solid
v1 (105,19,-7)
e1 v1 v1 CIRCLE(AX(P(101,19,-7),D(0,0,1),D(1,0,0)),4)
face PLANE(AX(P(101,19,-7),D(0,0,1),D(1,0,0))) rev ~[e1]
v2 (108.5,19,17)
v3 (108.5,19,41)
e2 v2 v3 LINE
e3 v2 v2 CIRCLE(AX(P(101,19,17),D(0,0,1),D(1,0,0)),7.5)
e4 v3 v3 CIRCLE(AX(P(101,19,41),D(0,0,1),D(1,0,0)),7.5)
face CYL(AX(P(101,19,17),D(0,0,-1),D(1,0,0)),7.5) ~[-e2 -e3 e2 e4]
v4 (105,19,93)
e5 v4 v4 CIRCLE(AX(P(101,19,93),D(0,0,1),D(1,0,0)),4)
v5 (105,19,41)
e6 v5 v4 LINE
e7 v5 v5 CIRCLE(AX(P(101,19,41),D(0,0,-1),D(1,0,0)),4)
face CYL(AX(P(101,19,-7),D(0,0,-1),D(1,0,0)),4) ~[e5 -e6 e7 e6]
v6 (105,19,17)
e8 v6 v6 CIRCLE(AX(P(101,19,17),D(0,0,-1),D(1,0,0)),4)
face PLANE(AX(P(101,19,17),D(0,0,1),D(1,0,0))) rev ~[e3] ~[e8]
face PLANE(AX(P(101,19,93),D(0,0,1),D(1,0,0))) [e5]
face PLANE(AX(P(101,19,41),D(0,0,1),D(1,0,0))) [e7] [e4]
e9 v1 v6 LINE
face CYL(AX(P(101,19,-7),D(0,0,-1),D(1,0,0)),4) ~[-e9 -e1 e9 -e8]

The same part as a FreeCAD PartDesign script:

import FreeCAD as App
import Part
import Sketcher
Q = App.Units.Quantity

doc = App.newDocument("Part")
params = doc.addObject("Spreadsheet::Sheet", "Params")
for row, (alias, value) in enumerate([
    ("sketch1_diameter", "8 mm"),
    ("pad1_length", "100 mm"),
    ("sketch2_diameter", "15 mm"),
    ("pad2_length", "24 mm"),
], start=1):
    params.set(f"A{row}", alias)
    params.set(f"B{row}", "=" + value)
    params.setAlias(f"B{row}", alias)

body = doc.addObject("PartDesign::Body", "Body")

# Sketch on XY plane
sketch1 = body.newObject("Sketcher::SketchObject", "Sketch")
sketch1.AttachmentSupport = (doc.getObject("XY_Plane"), [""])
sketch1.MapMode = "FlatFace"
sketch1.AttachmentOffset = App.Placement(App.Vector(0, 0, -118), App.Rotation())
sketch1.addGeometry(Part.Circle(App.Vector(42, 0, 0), App.Vector(0, 0, 1), 4), False)
sketch1.addConstraint(Sketcher.Constraint("PointOnObject", 0, 3, -1))
sketch1.addConstraint(Sketcher.Constraint("Diameter", 0, Q("8 mm")))
sketch1.addConstraint(Sketcher.Constraint("DistanceX", -1, 1, 0, 3, Q("42 mm")))
sketch1.setExpression("Constraints[1]", "Params.sketch1_diameter")
pad1 = body.newObject("PartDesign::Pad", "Pad")
pad1.Profile = sketch1
pad1.setExpression("Length", "Params.pad1_length")
body2 = doc.addObject("PartDesign::Body", "Body001")

# Sketch on XY plane
sketch2 = body2.newObject("Sketcher::SketchObject", "Sketch001")
sketch2.AttachmentSupport = (doc.getObject("XY_Plane001"), [""])
sketch2.MapMode = "FlatFace"
sketch2.AttachmentOffset = App.Placement(App.Vector(0, 0, -94), App.Rotation())
sketch2.addGeometry(Part.Circle(App.Vector(42, 0, 0), App.Vector(0, 0, 1), 8), False)
sketch2.addConstraint(Sketcher.Constraint("PointOnObject", 0, 3, -1))
sketch2.addConstraint(Sketcher.Constraint("Diameter", 0, Q("15 mm")))
sketch2.addConstraint(Sketcher.Constraint("DistanceX", -1, 1, 0, 3, Q("42 mm")))
sketch2.setExpression("Constraints[1]", "Params.sketch2_diameter")
pad2 = body2.newObject("PartDesign::Pad", "Pad001")
pad2.Profile = sketch2
pad2.setExpression("Length", "Params.pad2_length")
doc.recompute()

boolean = body2.newObject("PartDesign::Boolean", "Boolean")
boolean.Type = "Fuse"
boolean.addObjects([body])
body3 = doc.addObject("PartDesign::Body", "Body002")
doc.recompute()

body2.Placement = App.Placement(App.Vector(59, 19, 111), App.Rotation(App.Vector(0, 0, 1), 0))
boolean2 = body3.newObject("PartDesign::Boolean", "Boolean001")
boolean2.Type = "Fuse"
boolean2.addObjects([body2])

doc.recompute()
